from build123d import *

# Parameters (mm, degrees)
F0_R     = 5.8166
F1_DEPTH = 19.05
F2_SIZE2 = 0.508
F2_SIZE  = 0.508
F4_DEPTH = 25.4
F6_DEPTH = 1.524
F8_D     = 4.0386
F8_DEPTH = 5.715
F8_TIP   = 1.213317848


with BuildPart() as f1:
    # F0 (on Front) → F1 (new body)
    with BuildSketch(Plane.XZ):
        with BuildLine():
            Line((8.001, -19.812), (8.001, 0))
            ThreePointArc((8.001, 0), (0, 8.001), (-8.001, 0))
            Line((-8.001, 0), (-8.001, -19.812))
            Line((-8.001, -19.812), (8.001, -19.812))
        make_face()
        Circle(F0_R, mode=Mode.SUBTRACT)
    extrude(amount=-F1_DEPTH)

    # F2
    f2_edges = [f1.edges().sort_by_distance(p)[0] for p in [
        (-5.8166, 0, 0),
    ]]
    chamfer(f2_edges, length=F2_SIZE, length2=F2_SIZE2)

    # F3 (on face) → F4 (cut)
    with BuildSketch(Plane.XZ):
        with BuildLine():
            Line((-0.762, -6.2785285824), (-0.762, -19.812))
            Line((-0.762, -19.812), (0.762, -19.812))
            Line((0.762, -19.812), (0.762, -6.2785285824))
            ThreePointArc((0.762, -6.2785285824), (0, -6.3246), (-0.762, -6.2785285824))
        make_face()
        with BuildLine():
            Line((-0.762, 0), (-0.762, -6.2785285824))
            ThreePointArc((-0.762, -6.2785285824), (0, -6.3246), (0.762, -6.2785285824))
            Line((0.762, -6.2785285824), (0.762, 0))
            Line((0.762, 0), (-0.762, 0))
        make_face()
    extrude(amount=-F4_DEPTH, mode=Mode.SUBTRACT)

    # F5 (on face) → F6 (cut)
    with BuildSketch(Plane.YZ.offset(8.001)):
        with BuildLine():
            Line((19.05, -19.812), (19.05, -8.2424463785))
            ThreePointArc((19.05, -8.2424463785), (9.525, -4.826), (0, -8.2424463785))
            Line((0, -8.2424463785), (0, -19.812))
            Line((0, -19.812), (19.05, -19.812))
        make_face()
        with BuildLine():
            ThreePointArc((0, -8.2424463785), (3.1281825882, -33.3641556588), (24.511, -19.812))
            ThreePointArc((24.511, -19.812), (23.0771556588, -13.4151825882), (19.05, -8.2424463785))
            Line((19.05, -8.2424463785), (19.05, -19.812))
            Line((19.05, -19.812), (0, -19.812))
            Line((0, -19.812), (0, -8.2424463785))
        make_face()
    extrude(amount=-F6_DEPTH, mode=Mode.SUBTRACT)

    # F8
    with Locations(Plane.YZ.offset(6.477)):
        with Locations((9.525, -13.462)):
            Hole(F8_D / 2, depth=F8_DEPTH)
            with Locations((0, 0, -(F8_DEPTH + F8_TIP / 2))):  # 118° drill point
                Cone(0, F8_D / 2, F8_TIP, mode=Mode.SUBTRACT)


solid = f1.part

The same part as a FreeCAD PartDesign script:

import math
import FreeCAD as App
import Part
import Sketcher
from FreeCAD import Vector
Q = App.Units.Quantity


def edges_at(feature, points):
    """Names of the edges that pass closest to the given points."""
    edges = feature.Shape.Edges
    near = lambda p: min(range(len(edges)), key=lambda i: edges[i].distToShape(Part.Vertex(*p))[0])
    return sorted({f"Edge{near(p) + 1}" for p in points})

doc = App.newDocument("Part")
body = doc.addObject("PartDesign::Body", "Body")

sketch1 = body.newObject("Sketcher::SketchObject", "Sketch")
sketch1.AttachmentSupport = (doc.getObject("XZ_Plane"), [""])
sketch1.MapMode = "FlatFace"
sketch1.addGeometry([
    Part.LineSegment(Vector(8.001, -19.812, 0), Vector(8.001, 0, 0)),
    Part.ArcOfCircle(Part.Circle(Vector(0, 0, 0), Vector(0, 0, 1), 8.001), math.radians(0), math.radians(180)),
    Part.LineSegment(Vector(-8.001, 0, 0), Vector(-8.001, -19.812, 0)),
    Part.LineSegment(Vector(-8.001, -19.812, 0), Vector(8.001, -19.812, 0)),
    Part.Circle(Vector(0, 0, 0), Vector(0, 0, 1), 5.8166),
], False)
sketch1.addConstraint([
    Sketcher.Constraint("Tangent", 0, 2, 1, 1),
    Sketcher.Constraint("Tangent", 1, 2, 2, 1),
    Sketcher.Constraint("Coincident", 2, 2, 3, 1),
    Sketcher.Constraint("Coincident", 3, 2, 0, 1),
    Sketcher.Constraint("Vertical", 0),
    Sketcher.Constraint("Vertical", 2),
    Sketcher.Constraint("Horizontal", 3),
    Sketcher.Constraint("Coincident", 1, 3, -1, 1),
    Sketcher.Constraint("Coincident", 4, 3, -1, 1),
    Sketcher.Constraint("Diameter", 4, Q("0.458 in")),
    Sketcher.Constraint("Radius", 1, Q("0.315 in")),
    Sketcher.Constraint("DistanceY", 0, 1, 0, 2, Q("0.78 in")),
])
pad1 = body.newObject("PartDesign::Pad", "Pad")
pad1.Profile = sketch1
pad1.Length = Q("0.75 in")
pad1.Reversed = True
doc.recompute()

chamfer = body.newObject("PartDesign::Chamfer", "Chamfer")
chamfer.Base = (pad1, edges_at(pad1, [(-5.817, 0, 0)]))
chamfer.ChamferType = "Two distances"
chamfer.Size = Q("0.02 in")
chamfer.Size2 = Q("0.02 in")

sketch2 = body.newObject("Sketcher::SketchObject", "Sketch001")
sketch2.AttachmentSupport = (doc.getObject("XZ_Plane"), [""])
sketch2.MapMode = "FlatFace"
sketch2.addGeometry([
    Part.LineSegment(Vector(-0.762, -19.812, 0), Vector(0.762, -19.812, 0)),
    Part.LineSegment(Vector(0.762, -19.812, 0), Vector(0.762, 0, 0)),
    Part.LineSegment(Vector(0.762, 0, 0), Vector(-0.762, 0, 0)),
    Part.LineSegment(Vector(-0.762, 0, 0), Vector(-0.762, -19.812, 0)),
], False)
sketch2.addConstraint([
    Sketcher.Constraint("Coincident", 0, 2, 1, 1),
    Sketcher.Constraint("Coincident", 1, 2, 2, 1),
    Sketcher.Constraint("Coincident", 2, 2, 3, 1),
    Sketcher.Constraint("Coincident", 3, 2, 0, 1),
    Sketcher.Constraint("Horizontal", 0),
    Sketcher.Constraint("Vertical", 1),
    Sketcher.Constraint("Horizontal", 2),
    Sketcher.Constraint("Vertical", 3),
    Sketcher.Constraint("Symmetric", 1, 2, 2, 2, -1, 1),
    Sketcher.Constraint("DistanceX", 0, 1, 0, 2, Q("0.06 in")),
    Sketcher.Constraint("DistanceY", 1, 1, 1, 2, Q("0.78 in")),
])
pocket1 = body.newObject("PartDesign::Pocket", "Pocket")
pocket1.Profile = sketch2
pocket1.Length = Q("1 in")

sketch3 = body.newObject("Sketcher::SketchObject", "Sketch002")
sketch3.AttachmentSupport = (doc.getObject("YZ_Plane"), [""])
sketch3.MapMode = "FlatFace"
sketch3.AttachmentOffset = App.Placement(Vector(0, 0, 0.315 * 25.4), App.Rotation())
sketch3.addGeometry([
    Part.ArcOfCircle(Part.Circle(Vector(9.525, -19.812, 0), Vector(0, 0, 1), 14.986), math.radians(50.536004), math.radians(129.463996)),
    Part.ArcOfCircle(Part.Circle(Vector(9.525, -19.812, 0), Vector(0, 0, 1), 14.986), math.radians(129.463996), math.radians(410.536004)),
], False)
sketch3.addConstraint([
    Sketcher.Constraint("Tangent", 0, 1, 1, 2),
    Sketcher.Constraint("Coincident", 1, 1, 0, 2),
    Sketcher.Constraint("PointOnObject", 1, 1, -2),
    Sketcher.Constraint("Horizontal", 0, 1, 1, 1),
    Sketcher.Constraint("Radius", 0, Q("0.59 in")),
    Sketcher.Constraint("DistanceY", 0, 3, -1, 1, Q("0.78 in")),
    Sketcher.Constraint("DistanceX", -1, 1, 0, 1, Q("0.75 in")),
])
pocket2 = body.newObject("PartDesign::Pocket", "Pocket001")
pocket2.Profile = sketch3
pocket2.Length = Q("0.06 in")

sketch4 = body.newObject("Sketcher::SketchObject", "Sketch003")
sketch4.AttachmentSupport = (doc.getObject("YZ_Plane"), [""])
sketch4.MapMode = "FlatFace"
sketch4.AttachmentOffset = App.Placement(Vector(0, 0, 0.255 * 25.4), App.Rotation())
sketch4.addGeometry(Part.Circle(Vector(9.525, -13.462, 0), Vector(0, 0, 1), 2.0193), False)
sketch4.addConstraint([
    Sketcher.Constraint("Diameter", 0, Q("0.159 in")),
    Sketcher.Constraint("DistanceY", 0, 3, -1, 1, Q("0.53 in")),
    Sketcher.Constraint("DistanceX", -1, 1, 0, 3, Q("0.375 in")),
])
doc.recompute()
hole = body.newObject("PartDesign::Hole", "Hole")
hole.Profile = sketch4
hole.ThreadType = "None"
hole.Diameter = Q("0.159 in")
hole.DepthType = "Dimension"
hole.Depth = Q("0.225 in")
hole.DrillPoint = "Angled"
hole.DrillPointAngle = 118

doc.recompute()
